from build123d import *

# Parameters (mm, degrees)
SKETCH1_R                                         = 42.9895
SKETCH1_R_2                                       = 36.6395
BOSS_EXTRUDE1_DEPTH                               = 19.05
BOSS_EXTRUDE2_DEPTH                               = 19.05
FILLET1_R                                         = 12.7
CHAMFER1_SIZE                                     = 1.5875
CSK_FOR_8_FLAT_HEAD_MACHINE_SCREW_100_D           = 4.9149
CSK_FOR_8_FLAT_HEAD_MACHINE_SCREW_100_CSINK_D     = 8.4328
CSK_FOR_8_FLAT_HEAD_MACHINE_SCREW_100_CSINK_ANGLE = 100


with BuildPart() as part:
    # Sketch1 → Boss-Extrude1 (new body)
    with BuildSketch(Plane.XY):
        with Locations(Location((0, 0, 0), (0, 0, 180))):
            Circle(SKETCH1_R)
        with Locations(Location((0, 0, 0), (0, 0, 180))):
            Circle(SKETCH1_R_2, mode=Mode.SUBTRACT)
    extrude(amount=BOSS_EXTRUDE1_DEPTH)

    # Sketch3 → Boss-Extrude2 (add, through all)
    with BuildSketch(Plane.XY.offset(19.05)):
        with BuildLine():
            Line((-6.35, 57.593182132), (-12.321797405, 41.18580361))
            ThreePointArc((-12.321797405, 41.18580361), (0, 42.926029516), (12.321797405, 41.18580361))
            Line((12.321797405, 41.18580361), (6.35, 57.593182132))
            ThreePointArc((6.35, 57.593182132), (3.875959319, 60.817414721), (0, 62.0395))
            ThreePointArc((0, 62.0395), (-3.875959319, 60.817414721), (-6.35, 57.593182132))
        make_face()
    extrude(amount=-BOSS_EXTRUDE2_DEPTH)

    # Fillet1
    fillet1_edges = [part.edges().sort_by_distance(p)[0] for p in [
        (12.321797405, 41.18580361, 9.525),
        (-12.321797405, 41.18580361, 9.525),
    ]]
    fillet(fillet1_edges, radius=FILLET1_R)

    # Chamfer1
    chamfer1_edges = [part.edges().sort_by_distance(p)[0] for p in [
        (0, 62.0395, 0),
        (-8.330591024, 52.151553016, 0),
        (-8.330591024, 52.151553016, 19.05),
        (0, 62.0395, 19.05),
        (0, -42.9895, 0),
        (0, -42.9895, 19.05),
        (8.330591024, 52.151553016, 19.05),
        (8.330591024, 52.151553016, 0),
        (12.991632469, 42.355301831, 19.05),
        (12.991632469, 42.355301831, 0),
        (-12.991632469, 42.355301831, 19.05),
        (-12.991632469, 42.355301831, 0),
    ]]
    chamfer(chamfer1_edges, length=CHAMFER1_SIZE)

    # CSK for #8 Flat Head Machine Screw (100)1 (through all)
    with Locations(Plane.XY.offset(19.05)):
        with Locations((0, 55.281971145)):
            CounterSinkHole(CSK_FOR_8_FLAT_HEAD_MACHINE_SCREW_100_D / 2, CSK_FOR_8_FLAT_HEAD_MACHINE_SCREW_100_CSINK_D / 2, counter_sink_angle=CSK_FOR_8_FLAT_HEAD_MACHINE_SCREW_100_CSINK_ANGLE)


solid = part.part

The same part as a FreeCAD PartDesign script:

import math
import FreeCAD as App
import Part
import Sketcher

V = App.Vector
Q = App.Units.Quantity


def edges_at(feature, points):
    """Names of the edges that pass closest to the given points."""
    edges = feature.Shape.Edges
    near = lambda p: min(range(len(edges)), key=lambda i: edges[i].distToShape(Part.Vertex(*p))[0])
    return sorted({f"Edge{near(p) + 1}" for p in points})

doc = App.newDocument("Part")
body = doc.addObject("PartDesign::Body", "Body")

# Sketch on XY plane
sketch1 = body.newObject("Sketcher::SketchObject", "Sketch")
sketch1.AttachmentSupport = (doc.getObject("XY_Plane"), [""])
sketch1.MapMode = "FlatFace"
sketch1.addGeometry(Part.Circle(V(0, 0, 0), V(0, 0, 1), 43), False)
sketch1.addGeometry(Part.Circle(V(0, 0, 0), V(0, 0, 1), 37), False)
sketch1.addConstraint(Sketcher.Constraint("Coincident", 0, 3, -1, 1))
sketch1.addConstraint(Sketcher.Constraint("Coincident", 1, 3, -1, 1))
sketch1.addConstraint(Sketcher.Constraint("Diameter", 0, Q("3.385 in")))
sketch1.addConstraint(Sketcher.Constraint("Diameter", 1, Q("2.885 in")))
pad1 = body.newObject("PartDesign::Pad", "Pad")
pad1.Profile = sketch1
pad1.Length = Q("0.75 in")

# Sketch on XY plane
sketch2 = body.newObject("Sketcher::SketchObject", "Sketch001")
sketch2.AttachmentSupport = (doc.getObject("XY_Plane"), [""])
sketch2.MapMode = "FlatFace"
sketch2.AttachmentOffset = App.Placement(V(0, 0, 0.75 * 25.4), App.Rotation())
sketch2.addGeometry(Part.LineSegment(V(-6, 58, 0), V(-12, 41, 0)), False)
sketch2.addGeometry(Part.ArcOfCircle(Part.Circle(V(0, -2, 0), V(0, 0, 1), 44), math.radians(74), math.radians(106)), False)
sketch2.addGeometry(Part.LineSegment(V(12, 41, 0), V(6, 58, 0)), False)
sketch2.addGeometry(Part.ArcOfCircle(Part.Circle(V(0, 55, 0), V(0, 0, 1), 7), math.radians(20), math.radians(90)), False)
sketch2.addGeometry(Part.ArcOfCircle(Part.Circle(V(0, 55, 0), V(0, 0, 1), 7), math.radians(90), math.radians(160)), False)
sketch2.addConstraint(Sketcher.Constraint("Coincident", 0, 2, 1, 2))
sketch2.addConstraint(Sketcher.Constraint("Coincident", 1, 1, 2, 1))
sketch2.addConstraint(Sketcher.Constraint("Tangent", 2, 2, 3, 1))
sketch2.addConstraint(Sketcher.Constraint("Tangent", 3, 2, 4, 1))
sketch2.addConstraint(Sketcher.Constraint("Tangent", 4, 2, 0, 1))
sketch2.addConstraint(Sketcher.Constraint("Equal", 3, 4))
sketch2.addConstraint(Sketcher.Constraint("Symmetric", 0, 2, 1, 1, -2))
sketch2.addConstraint(Sketcher.Constraint("PointOnObject", 3, 3, -2))
sketch2.addConstraint(Sketcher.Constraint("PointOnObject", 3, 2, -2))
sketch2.addConstraint(Sketcher.Constraint("Angle", 0, Q("-110 deg")))
sketch2.addConstraint(Sketcher.Constraint("DistanceX", 4, 2, 2, 2, Q("0.5 in")))
sketch2.addConstraint(Sketcher.Constraint("Radius", 1, Q("44.492809 mm")))
sketch2.addConstraint(Sketcher.Constraint("DistanceY", -1, 1, 3, 2, Q("2.4425 in")))
sketch2.addConstraint(Sketcher.Constraint("DistanceY", 1, 3, -1, 1, Q("1.566779 mm")))
pad2 = body.newObject("PartDesign::Pad", "Pad001")
pad2.Profile = sketch2
pad2.Length = Q("0.75 in")
pad2.Reversed = True
doc.recompute()

fillet = body.newObject("PartDesign::Fillet", "Fillet")
fillet.Base = (pad2, edges_at(pad2, [(12.322, 41.186, 9.525), (-12.322, 41.186, 9.525)]))
fillet.Radius = Q("0.5 in")
doc.recompute()

chamfer = body.newObject("PartDesign::Chamfer", "Chamfer")
chamfer.Base = (fillet, edges_at(fillet, [
    (0, 62.039, 9.525),
    (-8.331, 52.152, 0),
    (-8.331, 52.152, 19.05),
    (-3.876, 60.817, 19.05),
    (0, -42.989, 0),
    (0, -42.989, 19.05),
    (8.331, 52.152, 19.05),
    (8.331, 52.152, 0),
    (12.992, 42.355, 19.05),
    (12.992, 42.355, 0),
    (-12.992, 42.355, 19.05),
    (-12.992, 42.355, 0),
]))
chamfer.Size = Q("0.0625 in")

# Sketch on XY plane
sketch3 = body.newObject("Sketcher::SketchObject", "Sketch002")
sketch3.AttachmentSupport = (doc.getObject("XY_Plane"), [""])
sketch3.MapMode = "FlatFace"
sketch3.AttachmentOffset = App.Placement(V(0, 0, 0.75 * 25.4), App.Rotation())
sketch3.addGeometry(Part.Circle(V(0, 55.3, 0), V(0, 0, 1), 2.5), False)
sketch3.addConstraint(Sketcher.Constraint("PointOnObject", 0, 3, -2))
sketch3.addConstraint(Sketcher.Constraint("Diameter", 0, Q("0.1935 in")))
sketch3.addConstraint(Sketcher.Constraint("DistanceY", -1, 1, 0, 3, Q("55.281971 mm")))
doc.recompute()
hole = body.newObject("PartDesign::Hole", "Hole")
hole.Profile = sketch3
hole.ThreadType = "None"
hole.Diameter = Q("0.1935 in")
hole.DepthType = "ThroughAll"
hole.HoleCutType = "Countersink"
hole.HoleCutDiameter = Q("0.332 in")
hole.HoleCutCountersinkAngle = 100

doc.recompute()
